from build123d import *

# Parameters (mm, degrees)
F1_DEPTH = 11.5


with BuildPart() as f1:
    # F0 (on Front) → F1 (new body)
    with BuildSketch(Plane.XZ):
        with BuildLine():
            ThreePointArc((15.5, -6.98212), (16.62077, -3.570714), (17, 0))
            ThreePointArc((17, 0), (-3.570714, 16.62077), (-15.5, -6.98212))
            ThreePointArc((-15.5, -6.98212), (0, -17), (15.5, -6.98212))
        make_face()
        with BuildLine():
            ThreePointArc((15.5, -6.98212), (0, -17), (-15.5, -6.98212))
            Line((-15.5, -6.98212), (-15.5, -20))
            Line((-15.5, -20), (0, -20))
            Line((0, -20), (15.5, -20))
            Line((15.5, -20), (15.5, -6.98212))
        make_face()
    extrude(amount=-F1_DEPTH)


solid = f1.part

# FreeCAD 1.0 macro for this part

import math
import FreeCAD as App
import Part
import Sketcher
from FreeCAD import Vector
Q = App.Units.Quantity

doc = App.newDocument("Part")
body = doc.addObject("PartDesign::Body", "Body")

# Sketch on XZ plane
sketch1 = body.newObject("Sketcher::SketchObject", "Sketch")
sketch1.AttachmentSupport = (doc.getObject("XZ_Plane"), [""])
sketch1.MapMode = "FlatFace"
sketch1.addGeometry(Part.ArcOfCircle(Part.Circle(Vector(-0.000008, 0.000002, 0), Vector(0, 0, 1), 17.000008), math.radians(-24.249623), math.radians(-0.000006)), False)
sketch1.addGeometry(Part.ArcOfCircle(Part.Circle(Vector(0, 0, 0), Vector(0, 0, 1), 17), math.radians(0), math.radians(204.249628)), False)
sketch1.addGeometry(Part.LineSegment(Vector(-15.5, -6.98212, 0), Vector(-15.5, -20, 0)), False)
sketch1.addGeometry(Part.LineSegment(Vector(-15.5, -20, 0), Vector(15.5, -20, 0)), False)
sketch1.addGeometry(Part.LineSegment(Vector(15.5, -20, 0), Vector(15.5, -6.98212, 0)), False)
sketch1.addConstraint(Sketcher.Constraint("Tangent", 0, 2, 1, 1))
sketch1.addConstraint(Sketcher.Constraint("Coincident", 1, 2, 2, 1))
sketch1.addConstraint(Sketcher.Constraint("Coincident", 2, 2, 3, 1))
sketch1.addConstraint(Sketcher.Constraint("Coincident", 3, 2, 4, 1))
sketch1.addConstraint(Sketcher.Constraint("Coincident", 4, 2, 0, 1))
sketch1.addConstraint(Sketcher.Constraint("Vertical", 2))
sketch1.addConstraint(Sketcher.Constraint("Horizontal", 3))
sketch1.addConstraint(Sketcher.Constraint("Vertical", 4))
sketch1.addConstraint(Sketcher.Constraint("Coincident", 0, 3, -1, 1))
sketch1.addConstraint(Sketcher.Constraint("Symmetric", 1, 2, 4, 2, -2))
sketch1.addConstraint(Sketcher.Constraint("PointOnObject", 0, 2, -1))
sketch1.addConstraint(Sketcher.Constraint("Radius", 1, Q("17 mm")))
sketch1.addConstraint(Sketcher.Constraint("DistanceX", 3, 1, 3, 2, Q("31 mm")))
sketch1.addConstraint(Sketcher.Constraint("DistanceY", 2, 2, -1, 1, Q("20 mm")))
pad1 = body.newObject("PartDesign::Pad", "Pad")
pad1.Profile = sketch1
pad1.Length = 11.5
pad1.Reversed = True

doc.recompute()
